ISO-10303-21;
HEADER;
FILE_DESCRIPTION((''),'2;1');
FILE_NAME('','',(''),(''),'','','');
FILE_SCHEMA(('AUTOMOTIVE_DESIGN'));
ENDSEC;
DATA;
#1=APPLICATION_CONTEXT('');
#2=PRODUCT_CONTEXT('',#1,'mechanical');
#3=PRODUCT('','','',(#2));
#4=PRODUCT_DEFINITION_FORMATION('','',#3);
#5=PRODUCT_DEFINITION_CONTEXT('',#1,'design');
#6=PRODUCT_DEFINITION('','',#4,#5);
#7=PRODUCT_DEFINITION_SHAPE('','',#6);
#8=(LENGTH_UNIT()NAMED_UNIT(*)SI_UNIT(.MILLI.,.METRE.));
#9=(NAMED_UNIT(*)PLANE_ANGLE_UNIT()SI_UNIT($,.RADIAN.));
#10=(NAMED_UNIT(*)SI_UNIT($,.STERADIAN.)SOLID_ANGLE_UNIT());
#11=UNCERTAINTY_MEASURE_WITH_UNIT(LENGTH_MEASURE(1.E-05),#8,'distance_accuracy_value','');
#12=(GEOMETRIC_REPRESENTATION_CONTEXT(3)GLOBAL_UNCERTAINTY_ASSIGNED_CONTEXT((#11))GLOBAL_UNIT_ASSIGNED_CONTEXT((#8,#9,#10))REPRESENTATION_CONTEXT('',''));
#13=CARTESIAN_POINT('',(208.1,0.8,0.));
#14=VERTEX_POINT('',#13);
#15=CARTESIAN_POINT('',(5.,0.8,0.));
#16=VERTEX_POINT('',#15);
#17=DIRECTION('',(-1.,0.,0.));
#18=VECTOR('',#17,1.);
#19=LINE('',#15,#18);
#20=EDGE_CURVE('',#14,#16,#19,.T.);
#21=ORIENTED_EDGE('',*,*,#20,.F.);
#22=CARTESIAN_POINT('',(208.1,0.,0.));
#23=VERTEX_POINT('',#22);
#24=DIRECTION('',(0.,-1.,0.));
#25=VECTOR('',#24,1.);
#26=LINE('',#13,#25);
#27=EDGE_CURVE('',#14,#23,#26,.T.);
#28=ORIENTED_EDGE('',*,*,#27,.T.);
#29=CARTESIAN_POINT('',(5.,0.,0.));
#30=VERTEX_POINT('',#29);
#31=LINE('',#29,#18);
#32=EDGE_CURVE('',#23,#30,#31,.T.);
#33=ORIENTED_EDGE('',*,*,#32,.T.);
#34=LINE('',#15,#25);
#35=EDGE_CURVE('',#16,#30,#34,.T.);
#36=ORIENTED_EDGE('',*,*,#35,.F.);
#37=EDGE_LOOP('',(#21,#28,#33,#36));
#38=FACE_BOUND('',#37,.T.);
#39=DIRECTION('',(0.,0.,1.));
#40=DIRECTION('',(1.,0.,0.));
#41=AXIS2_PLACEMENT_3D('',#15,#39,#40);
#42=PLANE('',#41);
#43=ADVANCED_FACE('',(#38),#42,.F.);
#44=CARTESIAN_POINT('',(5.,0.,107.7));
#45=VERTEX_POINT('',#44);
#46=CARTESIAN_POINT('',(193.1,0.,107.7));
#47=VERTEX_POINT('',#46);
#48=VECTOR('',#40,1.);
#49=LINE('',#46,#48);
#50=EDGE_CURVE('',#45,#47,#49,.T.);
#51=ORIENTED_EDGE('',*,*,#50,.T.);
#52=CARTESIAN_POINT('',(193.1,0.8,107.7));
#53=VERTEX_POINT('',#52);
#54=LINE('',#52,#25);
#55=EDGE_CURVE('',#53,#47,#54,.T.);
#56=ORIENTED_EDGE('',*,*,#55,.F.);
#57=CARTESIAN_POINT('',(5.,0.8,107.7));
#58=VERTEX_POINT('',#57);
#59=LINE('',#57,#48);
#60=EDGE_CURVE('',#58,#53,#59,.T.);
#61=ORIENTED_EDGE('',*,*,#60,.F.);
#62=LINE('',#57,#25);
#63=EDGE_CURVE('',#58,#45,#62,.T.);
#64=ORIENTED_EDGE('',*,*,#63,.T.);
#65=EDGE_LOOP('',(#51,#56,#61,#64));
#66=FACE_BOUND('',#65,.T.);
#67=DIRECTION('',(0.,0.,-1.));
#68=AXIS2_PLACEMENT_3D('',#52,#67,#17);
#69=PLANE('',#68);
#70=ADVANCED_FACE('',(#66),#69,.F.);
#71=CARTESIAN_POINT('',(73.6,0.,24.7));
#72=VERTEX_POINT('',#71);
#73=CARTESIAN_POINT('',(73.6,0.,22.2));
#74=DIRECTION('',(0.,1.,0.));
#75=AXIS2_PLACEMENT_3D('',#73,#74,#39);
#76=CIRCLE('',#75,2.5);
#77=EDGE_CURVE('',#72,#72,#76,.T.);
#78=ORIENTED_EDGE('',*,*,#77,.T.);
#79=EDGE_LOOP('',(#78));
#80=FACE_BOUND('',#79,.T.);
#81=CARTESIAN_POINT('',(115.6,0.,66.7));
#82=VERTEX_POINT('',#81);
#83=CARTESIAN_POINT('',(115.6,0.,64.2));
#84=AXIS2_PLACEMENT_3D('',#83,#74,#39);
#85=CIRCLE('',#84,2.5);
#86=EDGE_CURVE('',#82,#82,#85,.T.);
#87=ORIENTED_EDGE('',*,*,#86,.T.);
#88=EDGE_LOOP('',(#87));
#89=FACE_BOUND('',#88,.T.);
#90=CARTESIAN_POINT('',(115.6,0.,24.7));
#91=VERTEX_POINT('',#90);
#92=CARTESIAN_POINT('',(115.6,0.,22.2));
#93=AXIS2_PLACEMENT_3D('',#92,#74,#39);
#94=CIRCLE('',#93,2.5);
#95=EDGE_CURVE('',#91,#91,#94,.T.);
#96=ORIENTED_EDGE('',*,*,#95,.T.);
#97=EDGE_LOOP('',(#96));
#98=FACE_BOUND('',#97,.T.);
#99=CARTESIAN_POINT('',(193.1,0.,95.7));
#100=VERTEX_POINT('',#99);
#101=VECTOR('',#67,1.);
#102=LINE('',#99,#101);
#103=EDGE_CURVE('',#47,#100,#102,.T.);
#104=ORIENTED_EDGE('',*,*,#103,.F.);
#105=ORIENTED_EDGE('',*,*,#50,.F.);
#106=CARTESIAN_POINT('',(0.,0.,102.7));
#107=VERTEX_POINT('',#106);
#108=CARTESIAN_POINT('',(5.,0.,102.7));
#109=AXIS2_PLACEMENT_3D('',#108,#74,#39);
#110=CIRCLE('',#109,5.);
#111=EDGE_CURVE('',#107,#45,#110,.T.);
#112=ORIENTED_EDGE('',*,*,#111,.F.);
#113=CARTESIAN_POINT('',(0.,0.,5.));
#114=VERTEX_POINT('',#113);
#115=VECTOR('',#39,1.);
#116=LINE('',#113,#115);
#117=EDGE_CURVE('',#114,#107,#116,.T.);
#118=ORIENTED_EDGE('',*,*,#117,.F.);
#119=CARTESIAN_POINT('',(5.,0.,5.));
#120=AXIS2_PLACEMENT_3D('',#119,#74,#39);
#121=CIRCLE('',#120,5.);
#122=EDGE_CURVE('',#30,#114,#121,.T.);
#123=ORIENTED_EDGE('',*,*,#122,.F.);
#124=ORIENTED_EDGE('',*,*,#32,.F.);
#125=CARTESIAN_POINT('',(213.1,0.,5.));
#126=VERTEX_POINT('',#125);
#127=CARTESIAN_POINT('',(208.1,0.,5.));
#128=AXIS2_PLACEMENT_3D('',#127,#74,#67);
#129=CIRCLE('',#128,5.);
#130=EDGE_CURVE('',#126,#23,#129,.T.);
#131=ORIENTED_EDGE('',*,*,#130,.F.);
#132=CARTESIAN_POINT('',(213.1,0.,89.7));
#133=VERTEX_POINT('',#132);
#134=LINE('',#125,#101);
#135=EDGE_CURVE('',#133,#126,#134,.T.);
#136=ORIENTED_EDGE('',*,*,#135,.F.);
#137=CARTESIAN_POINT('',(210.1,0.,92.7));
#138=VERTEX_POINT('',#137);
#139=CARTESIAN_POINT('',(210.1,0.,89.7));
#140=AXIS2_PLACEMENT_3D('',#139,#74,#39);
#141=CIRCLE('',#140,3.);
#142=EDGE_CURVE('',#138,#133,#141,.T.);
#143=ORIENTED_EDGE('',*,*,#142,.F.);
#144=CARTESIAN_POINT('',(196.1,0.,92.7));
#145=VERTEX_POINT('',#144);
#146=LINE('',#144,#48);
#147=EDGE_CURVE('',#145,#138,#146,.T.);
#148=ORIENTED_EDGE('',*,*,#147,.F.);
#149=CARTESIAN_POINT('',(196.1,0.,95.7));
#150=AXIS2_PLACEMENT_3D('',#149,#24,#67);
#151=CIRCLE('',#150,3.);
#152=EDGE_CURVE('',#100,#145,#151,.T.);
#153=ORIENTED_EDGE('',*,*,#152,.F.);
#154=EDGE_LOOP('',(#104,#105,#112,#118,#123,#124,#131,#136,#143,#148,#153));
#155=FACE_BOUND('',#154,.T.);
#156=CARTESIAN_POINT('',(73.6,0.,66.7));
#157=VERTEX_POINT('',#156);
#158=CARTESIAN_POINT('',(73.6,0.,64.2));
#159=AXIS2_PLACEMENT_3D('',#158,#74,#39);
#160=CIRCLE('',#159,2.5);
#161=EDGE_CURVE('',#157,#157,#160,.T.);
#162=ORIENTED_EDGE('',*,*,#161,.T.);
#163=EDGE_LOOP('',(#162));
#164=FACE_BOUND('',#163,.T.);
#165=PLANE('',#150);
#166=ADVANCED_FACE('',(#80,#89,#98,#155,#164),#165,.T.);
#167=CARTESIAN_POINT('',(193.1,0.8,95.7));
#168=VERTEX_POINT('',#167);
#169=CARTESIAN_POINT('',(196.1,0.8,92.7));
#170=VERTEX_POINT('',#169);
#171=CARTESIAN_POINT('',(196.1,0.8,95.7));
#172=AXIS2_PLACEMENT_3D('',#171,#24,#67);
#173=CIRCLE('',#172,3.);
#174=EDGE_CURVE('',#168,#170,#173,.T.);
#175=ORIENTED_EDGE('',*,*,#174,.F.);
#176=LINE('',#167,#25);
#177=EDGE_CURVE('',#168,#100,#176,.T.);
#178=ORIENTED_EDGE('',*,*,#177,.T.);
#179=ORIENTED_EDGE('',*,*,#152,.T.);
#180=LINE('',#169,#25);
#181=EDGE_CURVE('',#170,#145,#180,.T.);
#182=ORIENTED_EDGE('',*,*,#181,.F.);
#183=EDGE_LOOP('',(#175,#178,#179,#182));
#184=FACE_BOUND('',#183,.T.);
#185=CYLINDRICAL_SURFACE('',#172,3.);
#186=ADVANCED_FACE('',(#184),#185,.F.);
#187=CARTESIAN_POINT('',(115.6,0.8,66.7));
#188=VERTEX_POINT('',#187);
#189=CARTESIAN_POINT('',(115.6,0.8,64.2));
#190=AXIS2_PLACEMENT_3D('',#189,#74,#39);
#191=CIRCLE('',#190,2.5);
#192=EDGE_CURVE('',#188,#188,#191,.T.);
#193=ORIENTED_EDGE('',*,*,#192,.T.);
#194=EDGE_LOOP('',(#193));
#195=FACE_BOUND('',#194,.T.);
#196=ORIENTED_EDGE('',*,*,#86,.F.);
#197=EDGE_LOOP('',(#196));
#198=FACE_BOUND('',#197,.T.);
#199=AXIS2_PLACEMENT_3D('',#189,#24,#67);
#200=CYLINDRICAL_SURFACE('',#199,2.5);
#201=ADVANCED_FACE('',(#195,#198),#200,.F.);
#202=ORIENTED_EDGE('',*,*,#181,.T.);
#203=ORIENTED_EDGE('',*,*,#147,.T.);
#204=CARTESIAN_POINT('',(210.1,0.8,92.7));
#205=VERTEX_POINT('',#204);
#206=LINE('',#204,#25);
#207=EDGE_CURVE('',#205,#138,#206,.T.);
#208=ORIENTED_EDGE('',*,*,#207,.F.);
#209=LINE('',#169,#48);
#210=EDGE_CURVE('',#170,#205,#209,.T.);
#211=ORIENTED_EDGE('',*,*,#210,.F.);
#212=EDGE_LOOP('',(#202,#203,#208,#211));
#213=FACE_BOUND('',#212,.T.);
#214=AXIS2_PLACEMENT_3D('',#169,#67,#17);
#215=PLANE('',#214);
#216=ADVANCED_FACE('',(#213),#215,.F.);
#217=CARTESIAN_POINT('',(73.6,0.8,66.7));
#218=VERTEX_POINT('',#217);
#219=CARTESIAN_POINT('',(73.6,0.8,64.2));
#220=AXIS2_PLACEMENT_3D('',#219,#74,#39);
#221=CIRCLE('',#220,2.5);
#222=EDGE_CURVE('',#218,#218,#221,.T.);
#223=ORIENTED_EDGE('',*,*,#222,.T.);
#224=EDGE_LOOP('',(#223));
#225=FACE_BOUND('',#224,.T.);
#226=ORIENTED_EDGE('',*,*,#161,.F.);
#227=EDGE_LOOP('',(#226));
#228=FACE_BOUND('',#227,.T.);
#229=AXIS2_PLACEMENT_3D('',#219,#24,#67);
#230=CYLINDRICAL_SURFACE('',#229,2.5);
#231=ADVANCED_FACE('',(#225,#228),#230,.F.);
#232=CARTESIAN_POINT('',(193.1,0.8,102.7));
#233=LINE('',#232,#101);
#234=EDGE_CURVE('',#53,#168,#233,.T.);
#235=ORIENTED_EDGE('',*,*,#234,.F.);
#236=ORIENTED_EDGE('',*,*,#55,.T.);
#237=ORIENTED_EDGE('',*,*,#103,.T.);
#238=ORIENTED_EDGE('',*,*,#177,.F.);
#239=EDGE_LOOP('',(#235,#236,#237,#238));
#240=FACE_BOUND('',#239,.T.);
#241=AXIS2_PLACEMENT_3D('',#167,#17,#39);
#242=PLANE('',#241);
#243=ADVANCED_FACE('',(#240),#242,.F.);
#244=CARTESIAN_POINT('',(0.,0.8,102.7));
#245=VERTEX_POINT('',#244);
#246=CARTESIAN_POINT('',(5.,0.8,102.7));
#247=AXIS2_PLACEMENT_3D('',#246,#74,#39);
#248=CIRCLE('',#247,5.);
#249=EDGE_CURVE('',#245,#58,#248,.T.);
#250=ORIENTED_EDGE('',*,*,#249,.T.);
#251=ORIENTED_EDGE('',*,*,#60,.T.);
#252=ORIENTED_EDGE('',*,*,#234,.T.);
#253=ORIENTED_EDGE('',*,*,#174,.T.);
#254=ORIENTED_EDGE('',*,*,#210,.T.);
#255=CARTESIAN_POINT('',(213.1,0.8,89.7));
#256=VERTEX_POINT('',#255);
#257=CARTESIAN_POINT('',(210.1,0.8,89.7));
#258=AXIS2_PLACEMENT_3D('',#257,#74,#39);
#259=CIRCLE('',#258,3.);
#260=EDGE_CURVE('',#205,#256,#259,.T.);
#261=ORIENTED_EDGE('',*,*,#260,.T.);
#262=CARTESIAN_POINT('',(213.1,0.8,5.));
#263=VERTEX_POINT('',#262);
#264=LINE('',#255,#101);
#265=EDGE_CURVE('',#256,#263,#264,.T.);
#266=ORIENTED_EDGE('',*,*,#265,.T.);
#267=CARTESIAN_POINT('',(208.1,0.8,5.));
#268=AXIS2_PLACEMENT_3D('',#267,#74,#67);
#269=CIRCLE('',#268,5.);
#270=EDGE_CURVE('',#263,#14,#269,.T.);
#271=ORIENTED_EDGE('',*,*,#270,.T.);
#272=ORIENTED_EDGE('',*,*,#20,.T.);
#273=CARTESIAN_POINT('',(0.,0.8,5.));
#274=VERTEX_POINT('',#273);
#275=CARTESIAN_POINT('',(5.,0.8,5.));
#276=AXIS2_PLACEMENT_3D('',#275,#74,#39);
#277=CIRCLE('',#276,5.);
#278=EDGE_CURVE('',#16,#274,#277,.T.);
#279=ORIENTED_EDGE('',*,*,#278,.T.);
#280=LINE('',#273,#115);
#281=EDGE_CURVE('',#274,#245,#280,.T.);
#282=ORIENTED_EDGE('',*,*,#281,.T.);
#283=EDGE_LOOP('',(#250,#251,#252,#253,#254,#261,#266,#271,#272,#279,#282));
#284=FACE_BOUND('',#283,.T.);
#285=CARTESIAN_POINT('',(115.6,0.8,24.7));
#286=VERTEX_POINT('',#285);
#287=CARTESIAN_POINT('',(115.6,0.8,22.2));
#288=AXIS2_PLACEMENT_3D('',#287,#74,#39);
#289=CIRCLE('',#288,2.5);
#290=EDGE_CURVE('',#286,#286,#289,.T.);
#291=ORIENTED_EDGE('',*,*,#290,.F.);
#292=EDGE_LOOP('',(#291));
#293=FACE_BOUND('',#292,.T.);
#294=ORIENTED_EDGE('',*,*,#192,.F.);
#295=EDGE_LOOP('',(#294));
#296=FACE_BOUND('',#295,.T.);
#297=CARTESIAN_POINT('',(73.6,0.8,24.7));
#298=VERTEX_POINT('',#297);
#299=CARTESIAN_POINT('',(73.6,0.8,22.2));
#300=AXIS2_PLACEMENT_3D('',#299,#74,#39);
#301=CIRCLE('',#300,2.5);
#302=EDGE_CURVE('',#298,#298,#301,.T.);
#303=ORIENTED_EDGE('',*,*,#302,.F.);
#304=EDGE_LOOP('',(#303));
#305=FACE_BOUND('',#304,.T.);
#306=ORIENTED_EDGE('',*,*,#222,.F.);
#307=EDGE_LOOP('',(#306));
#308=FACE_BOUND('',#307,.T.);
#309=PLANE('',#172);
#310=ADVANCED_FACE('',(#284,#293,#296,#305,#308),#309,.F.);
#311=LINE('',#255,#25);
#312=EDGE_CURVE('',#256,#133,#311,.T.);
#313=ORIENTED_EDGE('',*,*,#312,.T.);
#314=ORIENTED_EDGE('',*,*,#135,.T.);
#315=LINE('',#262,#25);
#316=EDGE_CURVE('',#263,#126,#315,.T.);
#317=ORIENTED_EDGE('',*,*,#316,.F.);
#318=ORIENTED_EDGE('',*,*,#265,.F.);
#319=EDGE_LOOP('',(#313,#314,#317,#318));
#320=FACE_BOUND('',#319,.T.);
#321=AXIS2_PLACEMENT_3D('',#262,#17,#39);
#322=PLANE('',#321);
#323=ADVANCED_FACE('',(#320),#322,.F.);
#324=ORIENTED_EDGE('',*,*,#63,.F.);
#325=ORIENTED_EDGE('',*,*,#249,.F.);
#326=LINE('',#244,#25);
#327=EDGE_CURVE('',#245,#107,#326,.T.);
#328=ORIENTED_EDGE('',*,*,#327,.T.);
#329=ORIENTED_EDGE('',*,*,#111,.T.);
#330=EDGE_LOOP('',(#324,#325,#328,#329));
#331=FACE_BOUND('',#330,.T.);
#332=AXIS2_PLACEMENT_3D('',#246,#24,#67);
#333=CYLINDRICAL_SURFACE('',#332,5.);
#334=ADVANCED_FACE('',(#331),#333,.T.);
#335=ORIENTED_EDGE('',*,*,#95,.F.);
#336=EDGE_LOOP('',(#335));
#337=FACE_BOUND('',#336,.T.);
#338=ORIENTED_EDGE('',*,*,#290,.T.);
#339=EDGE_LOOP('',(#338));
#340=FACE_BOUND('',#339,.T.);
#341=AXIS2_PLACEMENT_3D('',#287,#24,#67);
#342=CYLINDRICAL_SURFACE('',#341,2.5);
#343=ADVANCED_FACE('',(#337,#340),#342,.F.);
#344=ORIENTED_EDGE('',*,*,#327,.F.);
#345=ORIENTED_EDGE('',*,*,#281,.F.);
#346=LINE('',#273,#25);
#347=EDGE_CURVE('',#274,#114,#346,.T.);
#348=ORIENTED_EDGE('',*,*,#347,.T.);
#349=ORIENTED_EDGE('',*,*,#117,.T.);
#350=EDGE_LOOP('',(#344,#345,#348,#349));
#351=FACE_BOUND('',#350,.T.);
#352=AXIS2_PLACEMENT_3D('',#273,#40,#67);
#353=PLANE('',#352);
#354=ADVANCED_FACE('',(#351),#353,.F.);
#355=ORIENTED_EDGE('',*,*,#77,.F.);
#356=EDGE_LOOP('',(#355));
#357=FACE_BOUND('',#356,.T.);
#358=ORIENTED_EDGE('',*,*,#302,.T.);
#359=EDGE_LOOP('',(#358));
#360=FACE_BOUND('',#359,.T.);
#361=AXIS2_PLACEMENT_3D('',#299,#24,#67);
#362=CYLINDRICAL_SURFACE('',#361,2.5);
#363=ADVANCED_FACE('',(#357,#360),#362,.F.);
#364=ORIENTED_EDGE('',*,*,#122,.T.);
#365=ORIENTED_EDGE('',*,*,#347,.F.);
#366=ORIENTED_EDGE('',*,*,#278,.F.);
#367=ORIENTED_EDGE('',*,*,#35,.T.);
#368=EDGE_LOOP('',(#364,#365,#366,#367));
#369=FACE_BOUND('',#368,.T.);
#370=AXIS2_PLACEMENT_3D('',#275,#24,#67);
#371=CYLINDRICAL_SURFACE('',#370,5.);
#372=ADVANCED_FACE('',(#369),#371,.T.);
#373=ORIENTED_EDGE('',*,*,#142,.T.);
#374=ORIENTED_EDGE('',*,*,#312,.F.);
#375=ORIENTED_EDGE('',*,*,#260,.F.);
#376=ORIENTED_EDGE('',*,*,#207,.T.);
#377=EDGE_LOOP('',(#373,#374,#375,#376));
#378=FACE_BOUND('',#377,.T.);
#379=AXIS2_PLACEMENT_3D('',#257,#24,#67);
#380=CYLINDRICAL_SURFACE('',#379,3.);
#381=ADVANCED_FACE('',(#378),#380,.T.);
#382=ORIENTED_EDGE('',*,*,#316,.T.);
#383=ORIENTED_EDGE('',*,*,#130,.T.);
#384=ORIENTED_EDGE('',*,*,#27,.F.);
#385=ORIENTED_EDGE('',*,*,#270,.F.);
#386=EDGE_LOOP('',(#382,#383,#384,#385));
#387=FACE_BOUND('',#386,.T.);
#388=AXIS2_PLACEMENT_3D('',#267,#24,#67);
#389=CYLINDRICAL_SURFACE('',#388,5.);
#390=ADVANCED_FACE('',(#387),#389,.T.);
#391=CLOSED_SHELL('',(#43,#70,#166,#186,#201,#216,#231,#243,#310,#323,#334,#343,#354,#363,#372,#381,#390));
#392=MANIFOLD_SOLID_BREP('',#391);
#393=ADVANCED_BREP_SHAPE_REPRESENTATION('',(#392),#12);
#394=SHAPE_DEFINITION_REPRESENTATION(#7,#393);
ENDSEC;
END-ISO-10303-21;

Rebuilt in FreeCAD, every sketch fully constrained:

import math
import FreeCAD as App
import Part
import Sketcher
Q = App.Units.Quantity

doc = App.newDocument("Part")
body = doc.addObject("PartDesign::Body", "Body")

sketch1 = body.newObject("Sketcher::SketchObject", "Sketch")
sketch1.AttachmentSupport = (doc.getObject("XZ_Plane"), [""])
sketch1.MapMode = "FlatFace"
sketch1.addGeometry([
    Part.LineSegment(App.Vector(208.1, 0, 0), App.Vector(5, 0, 0)),
    Part.ArcOfCircle(Part.Circle(App.Vector(5, 5, 0), App.Vector(0, 0, 1), 5), math.radians(180), math.radians(270)),
    Part.LineSegment(App.Vector(0, 5, 0), App.Vector(0, 102.7, 0)),
    Part.ArcOfCircle(Part.Circle(App.Vector(5, 102.7, 0), App.Vector(0, 0, 1), 5), math.radians(90), math.radians(180)),
    Part.LineSegment(App.Vector(5, 107.7, 0), App.Vector(193.1, 107.7, 0)),
    Part.LineSegment(App.Vector(193.1, 107.7, 0), App.Vector(193.1, 95.7, 0)),
    Part.ArcOfCircle(Part.Circle(App.Vector(196.1, 95.7, 0), App.Vector(0, 0, 1), 3), math.radians(180), math.radians(270)),
    Part.LineSegment(App.Vector(196.1, 92.7, 0), App.Vector(210.1, 92.7, 0)),
    Part.ArcOfCircle(Part.Circle(App.Vector(210.1, 89.7, 0), App.Vector(0, 0, 1), 3), math.radians(0), math.radians(90)),
    Part.LineSegment(App.Vector(213.1, 89.7, 0), App.Vector(213.1, 5, 0)),
    Part.ArcOfCircle(Part.Circle(App.Vector(208.1, 5, 0), App.Vector(0, 0, 1), 5), math.radians(-90), math.radians(0)),
    Part.Circle(App.Vector(115.6, 64.2, 0), App.Vector(0, 0, 1), 2.5),
    Part.Circle(App.Vector(73.6, 64.2, 0), App.Vector(0, 0, 1), 2.5),
    Part.Circle(App.Vector(115.6, 22.2, 0), App.Vector(0, 0, 1), 2.5),
    Part.Circle(App.Vector(73.6, 22.2, 0), App.Vector(0, 0, 1), 2.5),
], False)
sketch1.addConstraint([
    Sketcher.Constraint("Tangent", 0, 2, 1, 2),
    Sketcher.Constraint("Tangent", 1, 1, 2, 1),
    Sketcher.Constraint("Tangent", 2, 2, 3, 2),
    Sketcher.Constraint("Tangent", 3, 1, 4, 1),
    Sketcher.Constraint("Coincident", 4, 2, 5, 1),
    Sketcher.Constraint("Tangent", 5, 2, 6, 1),
    Sketcher.Constraint("Tangent", 6, 2, 7, 1),
    Sketcher.Constraint("Tangent", 7, 2, 8, 2),
    Sketcher.Constraint("Tangent", 8, 1, 9, 1),
    Sketcher.Constraint("Tangent", 9, 2, 10, 2),
    Sketcher.Constraint("Tangent", 10, 1, 0, 1),
    Sketcher.Constraint("Horizontal", 0),
    Sketcher.Constraint("Vertical", 2),
    Sketcher.Constraint("Horizontal", 4),
    Sketcher.Constraint("Vertical", 5),
    Sketcher.Constraint("Horizontal", 7),
    Sketcher.Constraint("Vertical", 9),
    Sketcher.Constraint("Equal", 1, 3),
    Sketcher.Constraint("Equal", 6, 8),
    Sketcher.Constraint("Equal", 3, 10),
    Sketcher.Constraint("Equal", 11, 12),
    Sketcher.Constraint("Equal", 12, 13),
    Sketcher.Constraint("Equal", 13, 14),
    Sketcher.Constraint("PointOnObject", 0, 2, -1),
    Sketcher.Constraint("PointOnObject", 1, 1, -2),
    Sketcher.Constraint("Horizontal", 11, 3, 12, 3),
    Sketcher.Constraint("Horizontal", 13, 3, 14, 3),
    Sketcher.Constraint("Vertical", 11, 3, 13, 3),
    Sketcher.Constraint("Vertical", 12, 3, 14, 3),
    Sketcher.Constraint("Diameter", 11, Q("5 mm")),
    Sketcher.Constraint("Radius", 1, Q("5 mm")),
    Sketcher.Constraint("Radius", 6, Q("3 mm")),
    Sketcher.Constraint("DistanceX", 7, 1, 7, 2, Q("14 mm")),
    Sketcher.Constraint("DistanceY", 5, 2, 5, 1, Q("12 mm")),
    Sketcher.Constraint("DistanceX", 0, 2, 0, 1, Q("203.1 mm")),
    Sketcher.Constraint("DistanceY", 2, 1, 2, 2, Q("97.7 mm")),
    Sketcher.Constraint("DistanceX", 12, 3, 11, 3, Q("42 mm")),
    Sketcher.Constraint("DistanceY", 13, 3, 11, 3, Q("42 mm")),
    Sketcher.Constraint("DistanceX", -1, 1, 11, 3, Q("115.6 mm")),
    Sketcher.Constraint("DistanceY", -1, 1, 11, 3, Q("64.2 mm")),
])
pad1 = body.newObject("PartDesign::Pad", "Pad")
pad1.Profile = sketch1
pad1.Length = 0.8
pad1.Reversed = True

doc.recompute()
